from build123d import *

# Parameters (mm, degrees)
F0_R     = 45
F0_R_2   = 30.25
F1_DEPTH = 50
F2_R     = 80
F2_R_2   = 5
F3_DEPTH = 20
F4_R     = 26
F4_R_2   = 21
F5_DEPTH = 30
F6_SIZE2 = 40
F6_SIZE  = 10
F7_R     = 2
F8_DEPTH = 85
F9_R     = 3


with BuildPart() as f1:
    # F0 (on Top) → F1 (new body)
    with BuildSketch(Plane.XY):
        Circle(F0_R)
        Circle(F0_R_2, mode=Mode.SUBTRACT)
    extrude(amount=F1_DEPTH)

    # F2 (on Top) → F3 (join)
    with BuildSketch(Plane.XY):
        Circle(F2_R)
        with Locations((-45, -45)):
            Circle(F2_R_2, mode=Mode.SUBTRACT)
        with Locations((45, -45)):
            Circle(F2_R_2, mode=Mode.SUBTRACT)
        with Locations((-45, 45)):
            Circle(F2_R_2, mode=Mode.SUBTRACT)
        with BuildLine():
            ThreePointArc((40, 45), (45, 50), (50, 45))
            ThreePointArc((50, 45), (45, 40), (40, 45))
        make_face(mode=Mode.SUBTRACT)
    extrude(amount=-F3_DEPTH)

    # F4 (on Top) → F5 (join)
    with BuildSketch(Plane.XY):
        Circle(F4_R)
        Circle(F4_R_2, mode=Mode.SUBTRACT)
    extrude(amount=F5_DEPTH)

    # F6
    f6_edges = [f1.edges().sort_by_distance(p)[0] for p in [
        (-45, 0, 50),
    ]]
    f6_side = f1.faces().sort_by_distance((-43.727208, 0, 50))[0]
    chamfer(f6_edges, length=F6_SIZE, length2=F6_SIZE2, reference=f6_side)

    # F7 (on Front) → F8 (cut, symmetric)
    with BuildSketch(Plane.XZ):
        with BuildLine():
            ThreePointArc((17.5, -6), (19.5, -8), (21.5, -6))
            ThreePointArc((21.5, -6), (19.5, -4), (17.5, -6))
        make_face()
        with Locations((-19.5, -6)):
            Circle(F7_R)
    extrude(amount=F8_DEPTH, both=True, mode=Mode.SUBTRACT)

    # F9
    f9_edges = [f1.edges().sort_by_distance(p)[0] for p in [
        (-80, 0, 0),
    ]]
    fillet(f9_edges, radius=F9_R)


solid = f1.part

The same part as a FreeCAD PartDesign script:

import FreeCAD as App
import Part
import Sketcher

V = App.Vector
Q = App.Units.Quantity


def edges_at(feature, points):
    """Names of the edges that pass closest to the given points."""
    edges = feature.Shape.Edges
    near = lambda p: min(range(len(edges)), key=lambda i: edges[i].distToShape(Part.Vertex(*p))[0])
    return sorted({f"Edge{near(p) + 1}" for p in points})

doc = App.newDocument("Part")
body = doc.addObject("PartDesign::Body", "Body")

sketch1 = doc.addObject("Sketcher::SketchObject", "Sketch")
body.addObject(sketch1)
sketch1.AttachmentSupport = (doc.XY_Plane, [""])
sketch1.MapMode = "FlatFace"
sketch1.addGeometry([
    Part.Circle(V(0, 0, 0), V(0, 0, 1), 45),
    Part.Circle(V(0, 0, 0), V(0, 0, 1), 30.25),
], False)
sketch1.addConstraint([
    Sketcher.Constraint("Coincident", 0, 3, -1, 1),
    Sketcher.Constraint("Coincident", 1, 3, -1, 1),
    Sketcher.Constraint("Diameter", 0, Q("90 mm")),
    Sketcher.Constraint("Diameter", 1, Q("60.5 mm")),
])
pad1 = doc.addObject("PartDesign::Pad", "Pad")
body.addObject(pad1)
pad1.Profile = sketch1
pad1.Length = 50

sketch2 = doc.addObject("Sketcher::SketchObject", "Sketch001")
body.addObject(sketch2)
sketch2.AttachmentSupport = (doc.XY_Plane, [""])
sketch2.MapMode = "FlatFace"
sketch2.addGeometry([
    Part.Circle(V(0, 0, 0), V(0, 0, 1), 80),
    Part.Circle(V(-45, -45, 0), V(0, 0, 1), 5),
    Part.Circle(V(45, -45, 0), V(0, 0, 1), 5),
    Part.Circle(V(-45, 45, 0), V(0, 0, 1), 5),
    Part.Circle(V(45, 45, 0), V(0, 0, 1), 5),
], False)
sketch2.addConstraint([
    Sketcher.Constraint("Coincident", 0, 3, -1, 1),
    Sketcher.Constraint("Equal", 1, 2),
    Sketcher.Constraint("Equal", 2, 3),
    Sketcher.Constraint("Equal", 3, 4),
    Sketcher.Constraint("Symmetric", 2, 3, 3, 3, -1, 1),
    Sketcher.Constraint("Symmetric", 1, 3, 4, 3, -1, 1),
    Sketcher.Constraint("Symmetric", 1, 3, 2, 3, -2),
    Sketcher.Constraint("Diameter", 0, Q("160 mm")),
    Sketcher.Constraint("Diameter", 1, Q("10 mm")),
    Sketcher.Constraint("DistanceX", 1, 3, -1, 1, Q("45 mm")),
    Sketcher.Constraint("DistanceY", 1, 3, -1, 1, Q("45 mm")),
])
pad2 = doc.addObject("PartDesign::Pad", "Pad001")
body.addObject(pad2)
pad2.Profile = sketch2
pad2.Length = 20
pad2.Reversed = True

sketch3 = doc.addObject("Sketcher::SketchObject", "Sketch002")
body.addObject(sketch3)
sketch3.AttachmentSupport = (doc.XY_Plane, [""])
sketch3.MapMode = "FlatFace"
sketch3.addGeometry([
    Part.Circle(V(0, 0, 0), V(0, 0, 1), 26),
    Part.Circle(V(0, 0, 0), V(0, 0, 1), 21),
], False)
sketch3.addConstraint([
    Sketcher.Constraint("Coincident", 0, 3, -1, 1),
    Sketcher.Constraint("Coincident", 1, 3, -1, 1),
    Sketcher.Constraint("Diameter", 0, Q("52 mm")),
    Sketcher.Constraint("Diameter", 1, Q("42 mm")),
])
pad3 = doc.addObject("PartDesign::Pad", "Pad002")
body.addObject(pad3)
pad3.Profile = sketch3
pad3.Length = 30
doc.recompute()

chamfer = doc.addObject("PartDesign::Chamfer", "Chamfer")
body.addObject(chamfer)
chamfer.Base = (pad3, edges_at(pad3, [(-45, 0, 50)]))
chamfer.ChamferType = "Two distances"
chamfer.Size = 10
chamfer.Size2 = 40
chamfer.FlipDirection = True

sketch4 = doc.addObject("Sketcher::SketchObject", "Sketch003")
body.addObject(sketch4)
sketch4.AttachmentSupport = (doc.XZ_Plane, [""])
sketch4.MapMode = "FlatFace"
sketch4.addGeometry([
    Part.Circle(V(19.5, -6, 0), V(0, 0, 1), 2),
    Part.Circle(V(-19.5, -6, 0), V(0, 0, 1), 2),
], False)
sketch4.addConstraint([
    Sketcher.Constraint("Equal", 0, 1),
    Sketcher.Constraint("Symmetric", 0, 3, 1, 3, -2),
    Sketcher.Constraint("Diameter", 0, Q("4 mm")),
    Sketcher.Constraint("DistanceY", 0, 3, -1, 1, Q("6 mm")),
    Sketcher.Constraint("DistanceX", 1, 3, 0, 3, Q("39 mm")),
])
pocket1 = doc.addObject("PartDesign::Pocket", "Pocket")
body.addObject(pocket1)
pocket1.Profile = sketch4
pocket1.Length = 170
pocket1.Midplane = True
doc.recompute()

fillet = doc.addObject("PartDesign::Fillet", "Fillet")
body.addObject(fillet)
fillet.Base = (pocket1, edges_at(pocket1, [(-80, 0, 0)]))
fillet.Radius = 3

doc.recompute()
